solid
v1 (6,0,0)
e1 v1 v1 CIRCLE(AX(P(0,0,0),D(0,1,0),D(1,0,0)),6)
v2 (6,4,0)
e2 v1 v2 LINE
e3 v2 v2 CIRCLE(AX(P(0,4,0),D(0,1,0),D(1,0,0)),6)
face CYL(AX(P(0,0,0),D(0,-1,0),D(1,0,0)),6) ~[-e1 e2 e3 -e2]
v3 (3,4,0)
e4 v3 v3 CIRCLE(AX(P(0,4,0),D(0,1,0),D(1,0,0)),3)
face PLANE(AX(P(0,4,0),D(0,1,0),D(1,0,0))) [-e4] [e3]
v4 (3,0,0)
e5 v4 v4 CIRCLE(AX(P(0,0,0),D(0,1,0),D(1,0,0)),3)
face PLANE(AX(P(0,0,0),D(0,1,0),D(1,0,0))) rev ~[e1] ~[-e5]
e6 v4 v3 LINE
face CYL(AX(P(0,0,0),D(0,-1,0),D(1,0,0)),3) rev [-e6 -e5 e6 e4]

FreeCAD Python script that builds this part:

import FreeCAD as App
import Part
import Sketcher

V = App.Vector

doc = App.newDocument("Part")
body = doc.addObject("PartDesign::Body", "Body")

# Sketch on XZ plane
sketch1 = body.newObject("Sketcher::SketchObject", "Sketch")
sketch1.AttachmentSupport = (doc.getObject("XZ_Plane"), [""])
sketch1.MapMode = "FlatFace"
sketch1.addGeometry([
    Part.Circle(V(0, 0, 0), V(0, 0, 1), 6),
    Part.Circle(V(0, 0, 0), V(0, 0, 1), 3),
], False)
sketch1.addConstraint([
    Sketcher.Constraint("Coincident", 0, 3, -1, 1),
    Sketcher.Constraint("Coincident", 1, 3, -1, 1),
    Sketcher.Constraint("Diameter", 0, 12.0),
    Sketcher.Constraint("Diameter", 1, 6.0),
])
pad1 = body.newObject("PartDesign::Pad", "Pad")
pad1.Profile = sketch1
pad1.Length = 4
pad1.Reversed = True

doc.recompute()
